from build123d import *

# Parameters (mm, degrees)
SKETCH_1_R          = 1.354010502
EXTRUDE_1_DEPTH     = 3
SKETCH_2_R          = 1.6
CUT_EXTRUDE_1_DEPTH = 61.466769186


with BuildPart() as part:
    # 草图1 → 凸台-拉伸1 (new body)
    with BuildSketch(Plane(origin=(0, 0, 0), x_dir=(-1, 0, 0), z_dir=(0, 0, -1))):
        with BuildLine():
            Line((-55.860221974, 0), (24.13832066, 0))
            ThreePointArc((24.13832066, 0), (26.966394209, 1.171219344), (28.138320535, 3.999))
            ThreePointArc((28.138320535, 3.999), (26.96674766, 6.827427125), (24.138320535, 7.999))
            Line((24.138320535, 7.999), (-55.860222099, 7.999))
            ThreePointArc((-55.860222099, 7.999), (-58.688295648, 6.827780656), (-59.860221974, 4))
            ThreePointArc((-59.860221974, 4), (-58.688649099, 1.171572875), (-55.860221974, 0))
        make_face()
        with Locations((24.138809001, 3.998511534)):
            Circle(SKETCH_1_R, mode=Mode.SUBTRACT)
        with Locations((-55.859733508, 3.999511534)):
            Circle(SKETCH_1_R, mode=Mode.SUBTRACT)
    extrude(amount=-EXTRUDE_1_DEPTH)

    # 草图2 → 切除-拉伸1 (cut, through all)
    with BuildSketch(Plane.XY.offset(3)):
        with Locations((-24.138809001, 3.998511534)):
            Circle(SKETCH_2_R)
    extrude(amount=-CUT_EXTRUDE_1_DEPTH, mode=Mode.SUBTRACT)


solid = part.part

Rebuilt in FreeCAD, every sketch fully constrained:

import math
import FreeCAD as App
import Part
import Sketcher

V = App.Vector
Q = App.Units.Quantity

doc = App.newDocument("Part")
body = doc.addObject("PartDesign::Body", "Body")

# Sketch on XY plane
sketch1 = body.newObject("Sketcher::SketchObject", "Sketch")
sketch1.AttachmentSupport = (doc.getObject("XY_Plane"), [""])
sketch1.MapMode = "FlatFace"
sketch1.addGeometry(Part.LineSegment(V(55.9, 0, 0), V(-24.1, 0, 0)), False)
sketch1.addGeometry(Part.ArcOfCircle(Part.Circle(V(-24.1, 4, 0), V(0, 0, 1), 4), math.radians(-180), math.radians(-90)), False)
sketch1.addGeometry(Part.ArcOfCircle(Part.Circle(V(-24.1, 4, 0), V(0, 0, 1), 4), math.radians(90), math.radians(180)), False)
sketch1.addGeometry(Part.LineSegment(V(-24.1, 8, 0), V(55.9, 8, 0)), False)
sketch1.addGeometry(Part.ArcOfCircle(Part.Circle(V(55.9, 4, 0), V(0, 0, 1), 4), math.radians(0), math.radians(90)), False)
sketch1.addGeometry(Part.ArcOfCircle(Part.Circle(V(55.9, 4, 0), V(0, 0, 1), 4), math.radians(-90), math.radians(0)), False)
sketch1.addGeometry(Part.Circle(V(-24.1, 4, 0), V(0, 0, 1), 1.4), False)
sketch1.addGeometry(Part.Circle(V(55.9, 4, 0), V(0, 0, 1), 1.4), False)
sketch1.addConstraint(Sketcher.Constraint("Tangent", 0, 2, 1, 2))
sketch1.addConstraint(Sketcher.Constraint("Coincident", 1, 1, 2, 2))
sketch1.addConstraint(Sketcher.Constraint("Tangent", 2, 1, 3, 1))
sketch1.addConstraint(Sketcher.Constraint("Tangent", 3, 2, 4, 2))
sketch1.addConstraint(Sketcher.Constraint("Coincident", 4, 1, 5, 2))
sketch1.addConstraint(Sketcher.Constraint("Tangent", 5, 1, 0, 1))
sketch1.addConstraint(Sketcher.Constraint("Horizontal", 0))
sketch1.addConstraint(Sketcher.Constraint("Horizontal", 3))
sketch1.addConstraint(Sketcher.Constraint("Equal", 1, 2))
sketch1.addConstraint(Sketcher.Constraint("Equal", 2, 4))
sketch1.addConstraint(Sketcher.Constraint("Equal", 4, 5))
sketch1.addConstraint(Sketcher.Constraint("Equal", 6, 7))
sketch1.addConstraint(Sketcher.Constraint("PointOnObject", 0, 2, -1))
sketch1.addConstraint(Sketcher.Constraint("Horizontal", 4, 3, 1, 1))
sketch1.addConstraint(Sketcher.Constraint("Horizontal", 5, 3, 4, 1))
sketch1.addConstraint(Sketcher.Constraint("Radius", 1, Q("4 mm")))
sketch1.addConstraint(Sketcher.Constraint("Diameter", 6, Q("2.708021 mm")))
sketch1.addConstraint(Sketcher.Constraint("DistanceY", -1, 1, 2, 3, Q("3.999 mm")))
sketch1.addConstraint(Sketcher.Constraint("DistanceY", 6, 3, 7, 3, Q("0.001 mm")))
sketch1.addConstraint(Sketcher.Constraint("DistanceX", 0, 2, 0, 1, Q("79.998543 mm")))
sketch1.addConstraint(Sketcher.Constraint("DistanceX", 1, 3, -1, 1, Q("24.138321 mm")))
sketch1.addConstraint(Sketcher.Constraint("DistanceX", 6, 3, -1, 1, Q("24.138809 mm")))
sketch1.addConstraint(Sketcher.Constraint("DistanceY", -1, 1, 6, 3, Q("3.998512 mm")))
sketch1.addConstraint(Sketcher.Constraint("DistanceX", 7, 3, 5, 3, Q("0.000488 mm")))
pad1 = body.newObject("PartDesign::Pad", "Pad")
pad1.Profile = sketch1
pad1.Length = 3

# Sketch on XY plane
sketch2 = body.newObject("Sketcher::SketchObject", "Sketch001")
sketch2.AttachmentSupport = (doc.getObject("XY_Plane"), [""])
sketch2.MapMode = "FlatFace"
sketch2.AttachmentOffset = App.Placement(V(0, 0, 3), App.Rotation())
sketch2.addGeometry(Part.Circle(V(-24.1, 4, 0), V(0, 0, 1), 1.6), False)
sketch2.addConstraint(Sketcher.Constraint("Diameter", 0, Q("3.2 mm")))
sketch2.addConstraint(Sketcher.Constraint("DistanceX", 0, 3, -1, 1, Q("24.138809 mm")))
sketch2.addConstraint(Sketcher.Constraint("DistanceY", -1, 1, 0, 3, Q("3.998512 mm")))
pocket1 = body.newObject("PartDesign::Pocket", "Pocket")
pocket1.Profile = sketch2
pocket1.Type = "ThroughAll"

doc.recompute()
